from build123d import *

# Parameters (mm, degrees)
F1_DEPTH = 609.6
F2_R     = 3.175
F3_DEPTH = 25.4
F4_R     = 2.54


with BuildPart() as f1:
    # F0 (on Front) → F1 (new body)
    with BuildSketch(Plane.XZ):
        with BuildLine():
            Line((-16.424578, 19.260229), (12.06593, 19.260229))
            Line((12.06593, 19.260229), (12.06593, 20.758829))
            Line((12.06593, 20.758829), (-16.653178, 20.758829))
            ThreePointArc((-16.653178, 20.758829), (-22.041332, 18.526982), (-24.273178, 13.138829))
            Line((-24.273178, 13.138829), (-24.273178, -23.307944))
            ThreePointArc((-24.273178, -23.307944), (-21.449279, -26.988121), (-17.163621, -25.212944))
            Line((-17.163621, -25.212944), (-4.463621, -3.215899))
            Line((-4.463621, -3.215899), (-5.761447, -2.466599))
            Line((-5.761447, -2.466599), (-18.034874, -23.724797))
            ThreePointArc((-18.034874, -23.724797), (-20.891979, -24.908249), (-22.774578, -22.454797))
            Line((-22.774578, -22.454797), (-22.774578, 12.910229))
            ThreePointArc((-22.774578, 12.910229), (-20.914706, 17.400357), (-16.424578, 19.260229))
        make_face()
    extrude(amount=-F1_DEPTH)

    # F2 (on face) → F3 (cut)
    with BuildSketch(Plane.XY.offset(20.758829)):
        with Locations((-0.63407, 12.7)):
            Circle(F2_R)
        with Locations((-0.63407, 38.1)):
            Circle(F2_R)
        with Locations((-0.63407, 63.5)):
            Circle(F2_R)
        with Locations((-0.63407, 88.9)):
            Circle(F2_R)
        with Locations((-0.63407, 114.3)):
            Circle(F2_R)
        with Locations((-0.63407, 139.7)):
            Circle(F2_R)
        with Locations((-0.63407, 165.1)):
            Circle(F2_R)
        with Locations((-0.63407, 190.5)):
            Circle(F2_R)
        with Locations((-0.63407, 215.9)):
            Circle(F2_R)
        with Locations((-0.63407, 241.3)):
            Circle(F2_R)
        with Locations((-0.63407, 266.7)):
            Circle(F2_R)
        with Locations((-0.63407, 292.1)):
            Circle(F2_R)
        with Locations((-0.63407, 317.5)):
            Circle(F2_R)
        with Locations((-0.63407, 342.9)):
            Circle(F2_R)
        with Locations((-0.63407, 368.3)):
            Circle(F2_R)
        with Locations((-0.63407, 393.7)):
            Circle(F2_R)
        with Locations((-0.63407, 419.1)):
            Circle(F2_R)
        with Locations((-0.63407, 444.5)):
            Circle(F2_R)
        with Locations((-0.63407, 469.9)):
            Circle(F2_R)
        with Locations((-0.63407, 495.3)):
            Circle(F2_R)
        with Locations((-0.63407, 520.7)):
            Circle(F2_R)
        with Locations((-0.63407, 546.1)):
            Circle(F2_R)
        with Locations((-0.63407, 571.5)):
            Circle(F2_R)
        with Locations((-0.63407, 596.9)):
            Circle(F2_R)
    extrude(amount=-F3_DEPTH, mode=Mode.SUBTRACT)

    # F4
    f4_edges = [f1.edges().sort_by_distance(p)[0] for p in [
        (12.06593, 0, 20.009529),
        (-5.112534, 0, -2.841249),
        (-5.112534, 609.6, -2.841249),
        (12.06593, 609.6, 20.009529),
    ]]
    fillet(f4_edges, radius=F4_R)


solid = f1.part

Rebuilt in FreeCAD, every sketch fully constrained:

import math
import FreeCAD as App
import Part
import Sketcher
Q = App.Units.Quantity


def edges_at(feature, points):
    """Names of the edges that pass closest to the given points."""
    edges = feature.Shape.Edges
    near = lambda p: min(range(len(edges)), key=lambda i: edges[i].distToShape(Part.Vertex(*p))[0])
    return sorted({f"Edge{near(p) + 1}" for p in points})

doc = App.newDocument("Part")
params = doc.addObject("Spreadsheet::Sheet", "Params")
for row, (alias, value) in enumerate([
    ("sketch1_radius", "0.3 in"),
    ("sketch1_radius2", "0.1 in"),
    ("sketch1_radius3", "0.15 in"),
    ("sketch1_radius4", "0.25 in"),
    ("sketch1_length", "1 in"),
    ("pad1_length", "24 in"),
    ("sketch2_diameter", "0.25 in"),
    ("pocket1_length", "1 in"),
    ("fillet_radius", "0.1 in"),
], start=1):
    params.set(f"A{row}", alias)
    params.set(f"B{row}", "=" + value)
    params.setAlias(f"B{row}", alias)

body = doc.addObject("PartDesign::Body", "Body")

# Sketch on XZ plane
sketch1 = body.newObject("Sketcher::SketchObject", "Sketch")
sketch1.AttachmentSupport = (doc.getObject("XZ_Plane"), [""])
sketch1.MapMode = "FlatFace"
sketch1.addGeometry([
    Part.LineSegment(App.Vector(-16.4, 19.3, 0), App.Vector(12.1, 19.3, 0)),  # 0
    Part.LineSegment(App.Vector(12.1, 19.3, 0), App.Vector(12.1, 20.8, 0)),  # 1
    Part.LineSegment(App.Vector(12.1, 20.8, 0), App.Vector(-16.7, 20.8, 0)),  # 2
    Part.ArcOfCircle(Part.Circle(App.Vector(-16.7, 13.1, 0), App.Vector(0, 0, 1), 7.6), math.radians(90), math.radians(180)),  # 3
    Part.LineSegment(App.Vector(-24.3, 13.1, 0), App.Vector(-24.3, -23.3, 0)),  # 4
    Part.ArcOfCircle(Part.Circle(App.Vector(-20.5, -23.3, 0), App.Vector(0, 0, 1), 3.8), math.radians(-180), math.radians(-30)),  # 5
    Part.LineSegment(App.Vector(-17.2, -25.2, 0), App.Vector(-4.5, -3.2, 0)),  # 6
    Part.LineSegment(App.Vector(-4.5, -3.2, 0), App.Vector(-5.8, -2.5, 0)),  # 7
    Part.LineSegment(App.Vector(-5.8, -2.5, 0), App.Vector(-18, -23.7, 0)),  # 8
    Part.ArcOfCircle(Part.Circle(App.Vector(-20.2, -22.5, 0), App.Vector(0, 0, 1), 2.5), math.radians(180), math.radians(330)),  # 9
    Part.LineSegment(App.Vector(-22.8, -22.5, 0), App.Vector(-22.8, 12.9, 0)),  # 10
    Part.ArcOfCircle(Part.Circle(App.Vector(-16.4, 12.9, 0), App.Vector(0, 0, 1), 6.4), math.radians(90), math.radians(180)),  # 11
], False)
sketch1.addConstraint([
    Sketcher.Constraint("Coincident", 0, 2, 1, 1),
    Sketcher.Constraint("Coincident", 1, 2, 2, 1),
    Sketcher.Constraint("Tangent", 2, 2, 3, 1),
    Sketcher.Constraint("Tangent", 3, 2, 4, 1),
    Sketcher.Constraint("Tangent", 4, 2, 5, 1),
    Sketcher.Constraint("Tangent", 5, 2, 6, 1),
    Sketcher.Constraint("Coincident", 6, 2, 7, 1),
    Sketcher.Constraint("Coincident", 7, 2, 8, 1),
    Sketcher.Constraint("Tangent", 8, 2, 9, 2),
    Sketcher.Constraint("Tangent", 9, 1, 10, 1),
    Sketcher.Constraint("Tangent", 10, 2, 11, 2),
    Sketcher.Constraint("Tangent", 11, 1, 0, 1),
    Sketcher.Constraint("Horizontal", 0),
    Sketcher.Constraint("Vertical", 1),
    Sketcher.Constraint("Horizontal", 2),
    Sketcher.Constraint("Vertical", 4),
    Sketcher.Constraint("Vertical", 10),
    Sketcher.Constraint("Perpendicular", 6, 7),
    Sketcher.Constraint("Perpendicular", 7, 8),
    Sketcher.Constraint("Radius", 3, Q("0.3 in")),
    Sketcher.Constraint("Radius", 9, Q("0.1 in")),
    Sketcher.Constraint("Radius", 5, Q("0.15 in")),
    Sketcher.Constraint("Radius", 11, Q("0.25 in")),
    Sketcher.Constraint("Distance", 6, Q("1 in")),
    Sketcher.Constraint("Angle", 6, Q("60 deg")),
    Sketcher.Constraint("DistanceY", 1, 1, 1, 2, Q("0.059 in")),
    Sketcher.Constraint("Distance", 7, Q("0.059 in")),
    Sketcher.Constraint("DistanceX", 5, 3, 9, 3, Q("0.009 in")),
    Sketcher.Constraint("DistanceY", 6, 2, -1, 1, 3.215899),
    Sketcher.Constraint("DistanceX", 0, 1, 0, 2, 28.490508),
    Sketcher.Constraint("DistanceY", 4, 2, 4, 1, 36.446773),
    Sketcher.Constraint("DistanceX", 9, 3, -1, 1, 20.234578),
])
sketch1.setExpression("Constraints[19]", "Params.sketch1_radius")
sketch1.setExpression("Constraints[20]", "Params.sketch1_radius2")
sketch1.setExpression("Constraints[21]", "Params.sketch1_radius3")
sketch1.setExpression("Constraints[22]", "Params.sketch1_radius4")
sketch1.setExpression("Constraints[23]", "Params.sketch1_length")
pad1 = body.newObject("PartDesign::Pad", "Pad")
pad1.Profile = sketch1
pad1.setExpression("Length", "Params.pad1_length")
pad1.Reversed = True

# Sketch on XY plane
sketch2 = body.newObject("Sketcher::SketchObject", "Sketch001")
sketch2.AttachmentSupport = (doc.getObject("XY_Plane"), [""])
sketch2.MapMode = "FlatFace"
sketch2.AttachmentOffset = App.Placement(App.Vector(0, 0, 20.758829), App.Rotation())
sketch2.addGeometry([
    Part.Circle(App.Vector(-0.6, 12.7, 0), App.Vector(0, 0, 1), 3.2),  # 0
    Part.Circle(App.Vector(-0.6, 38.1, 0), App.Vector(0, 0, 1), 3.2),  # 1
    Part.Circle(App.Vector(-0.6, 63.5, 0), App.Vector(0, 0, 1), 3.2),  # 2
    Part.Circle(App.Vector(-0.6, 88.9, 0), App.Vector(0, 0, 1), 3.2),  # 3
    Part.Circle(App.Vector(-0.6, 114.3, 0), App.Vector(0, 0, 1), 3.2),  # 4
    Part.Circle(App.Vector(-0.6, 139.7, 0), App.Vector(0, 0, 1), 3.2),  # 5
    Part.Circle(App.Vector(-0.6, 165.1, 0), App.Vector(0, 0, 1), 3.2),  # 6
    Part.Circle(App.Vector(-0.6, 190.5, 0), App.Vector(0, 0, 1), 3.2),  # 7
    Part.Circle(App.Vector(-0.6, 215.9, 0), App.Vector(0, 0, 1), 3.2),  # 8
    Part.Circle(App.Vector(-0.6, 241.3, 0), App.Vector(0, 0, 1), 3.2),  # 9
    Part.Circle(App.Vector(-0.6, 266.7, 0), App.Vector(0, 0, 1), 3.2),  # 10
    Part.Circle(App.Vector(-0.6, 292.1, 0), App.Vector(0, 0, 1), 3.2),  # 11
    Part.Circle(App.Vector(-0.6, 317.5, 0), App.Vector(0, 0, 1), 3.2),  # 12
    Part.Circle(App.Vector(-0.6, 342.9, 0), App.Vector(0, 0, 1), 3.2),  # 13
    Part.Circle(App.Vector(-0.6, 368.3, 0), App.Vector(0, 0, 1), 3.2),  # 14
    Part.Circle(App.Vector(-0.6, 393.7, 0), App.Vector(0, 0, 1), 3.2),  # 15
    Part.Circle(App.Vector(-0.6, 419.1, 0), App.Vector(0, 0, 1), 3.2),  # 16
    Part.Circle(App.Vector(-0.6, 444.5, 0), App.Vector(0, 0, 1), 3.2),  # 17
    Part.Circle(App.Vector(-0.6, 469.9, 0), App.Vector(0, 0, 1), 3.2),  # 18
    Part.Circle(App.Vector(-0.6, 495.3, 0), App.Vector(0, 0, 1), 3.2),  # 19
    Part.Circle(App.Vector(-0.6, 520.7, 0), App.Vector(0, 0, 1), 3.2),  # 20
    Part.Circle(App.Vector(-0.6, 546.1, 0), App.Vector(0, 0, 1), 3.2),  # 21
    Part.Circle(App.Vector(-0.6, 571.5, 0), App.Vector(0, 0, 1), 3.2),  # 22
    Part.Circle(App.Vector(-0.6, 596.9, 0), App.Vector(0, 0, 1), 3.2),  # 23
], False)
sketch2.addConstraint([
    Sketcher.Constraint("Equal", 0, 1),
    Sketcher.Constraint("Equal", 1, 2),
    Sketcher.Constraint("Equal", 2, 3),
    Sketcher.Constraint("Equal", 3, 4),
    Sketcher.Constraint("Equal", 4, 5),
    Sketcher.Constraint("Equal", 5, 6),
    Sketcher.Constraint("Equal", 6, 7),
    Sketcher.Constraint("Equal", 7, 8),
    Sketcher.Constraint("Equal", 8, 9),
    Sketcher.Constraint("Equal", 9, 10),
    Sketcher.Constraint("Equal", 10, 11),
    Sketcher.Constraint("Equal", 11, 12),
    Sketcher.Constraint("Equal", 12, 13),
    Sketcher.Constraint("Equal", 13, 14),
    Sketcher.Constraint("Equal", 14, 15),
    Sketcher.Constraint("Equal", 15, 16),
    Sketcher.Constraint("Equal", 16, 17),
    Sketcher.Constraint("Equal", 17, 18),
    Sketcher.Constraint("Equal", 18, 19),
    Sketcher.Constraint("Equal", 19, 20),
    Sketcher.Constraint("Equal", 20, 21),
    Sketcher.Constraint("Equal", 21, 22),
    Sketcher.Constraint("Equal", 22, 23),
    Sketcher.Constraint("Vertical", 0, 3, 1, 3),
    Sketcher.Constraint("Vertical", 1, 3, 2, 3),
    Sketcher.Constraint("Vertical", 2, 3, 3, 3),
    Sketcher.Constraint("Vertical", 3, 3, 4, 3),
    Sketcher.Constraint("Vertical", 4, 3, 5, 3),
    Sketcher.Constraint("Vertical", 5, 3, 6, 3),
    Sketcher.Constraint("Vertical", 6, 3, 7, 3),
    Sketcher.Constraint("Vertical", 7, 3, 8, 3),
    Sketcher.Constraint("Vertical", 8, 3, 9, 3),
    Sketcher.Constraint("Vertical", 9, 3, 10, 3),
    Sketcher.Constraint("Vertical", 10, 3, 11, 3),
    Sketcher.Constraint("Vertical", 11, 3, 12, 3),
    Sketcher.Constraint("Vertical", 12, 3, 13, 3),
    Sketcher.Constraint("Vertical", 13, 3, 14, 3),
    Sketcher.Constraint("Vertical", 14, 3, 15, 3),
    Sketcher.Constraint("Vertical", 15, 3, 16, 3),
    Sketcher.Constraint("Vertical", 16, 3, 17, 3),
    Sketcher.Constraint("Vertical", 17, 3, 18, 3),
    Sketcher.Constraint("Vertical", 18, 3, 19, 3),
    Sketcher.Constraint("Vertical", 19, 3, 20, 3),
    Sketcher.Constraint("Vertical", 20, 3, 21, 3),
    Sketcher.Constraint("Vertical", 21, 3, 22, 3),
    Sketcher.Constraint("Vertical", 22, 3, 23, 3),
    Sketcher.Constraint("Diameter", 0, Q("0.25 in")),
    Sketcher.Constraint("DistanceY", 0, 3, 1, 3, Q("1 in")),
    Sketcher.Constraint("DistanceY", 1, 3, 2, 3, Q("1 in")),
    Sketcher.Constraint("DistanceY", 2, 3, 3, 3, Q("1 in")),
    Sketcher.Constraint("DistanceY", 3, 3, 4, 3, Q("1 in")),
    Sketcher.Constraint("DistanceY", 4, 3, 5, 3, Q("1 in")),
    Sketcher.Constraint("DistanceY", 5, 3, 6, 3, Q("1 in")),
    Sketcher.Constraint("DistanceY", 6, 3, 7, 3, Q("1 in")),
    Sketcher.Constraint("DistanceY", 7, 3, 8, 3, Q("1 in")),
    Sketcher.Constraint("DistanceY", 8, 3, 9, 3, Q("1 in")),
    Sketcher.Constraint("DistanceY", 9, 3, 10, 3, Q("1 in")),
    Sketcher.Constraint("DistanceY", 10, 3, 11, 3, Q("1 in")),
    Sketcher.Constraint("DistanceY", 11, 3, 12, 3, Q("1 in")),
    Sketcher.Constraint("DistanceY", 12, 3, 13, 3, Q("1 in")),
    Sketcher.Constraint("DistanceY", 13, 3, 14, 3, Q("1 in")),
    Sketcher.Constraint("DistanceY", 14, 3, 15, 3, Q("1 in")),
    Sketcher.Constraint("DistanceY", 15, 3, 16, 3, Q("1 in")),
    Sketcher.Constraint("DistanceY", 16, 3, 17, 3, Q("1 in")),
    Sketcher.Constraint("DistanceY", 17, 3, 18, 3, Q("1 in")),
    Sketcher.Constraint("DistanceY", 18, 3, 19, 3, Q("1 in")),
    Sketcher.Constraint("DistanceY", 19, 3, 20, 3, Q("1 in")),
    Sketcher.Constraint("DistanceY", 20, 3, 21, 3, Q("1 in")),
    Sketcher.Constraint("DistanceY", 21, 3, 22, 3, Q("1 in")),
    Sketcher.Constraint("DistanceY", 22, 3, 23, 3, Q("1 in")),
    Sketcher.Constraint("DistanceY", -1, 1, 0, 3, Q("0.5 in")),
    Sketcher.Constraint("DistanceX", 0, 3, -1, 1, 0.63407),
])
sketch2.setExpression("Constraints[46]", "Params.sketch2_diameter")
pocket1 = body.newObject("PartDesign::Pocket", "Pocket")
pocket1.Profile = sketch2
pocket1.setExpression("Length", "Params.pocket1_length")
doc.recompute()

fillet = body.newObject("PartDesign::Fillet", "Fillet")
fillet.Base = (pocket1, edges_at(pocket1, [
    (12.066, 0, 20.01),
    (-5.113, 0, -2.841),
    (-5.113, 609.6, -2.841),
    (12.066, 609.6, 20.01),
]))
fillet.setExpression("Radius", "Params.fillet_radius")

doc.recompute()
